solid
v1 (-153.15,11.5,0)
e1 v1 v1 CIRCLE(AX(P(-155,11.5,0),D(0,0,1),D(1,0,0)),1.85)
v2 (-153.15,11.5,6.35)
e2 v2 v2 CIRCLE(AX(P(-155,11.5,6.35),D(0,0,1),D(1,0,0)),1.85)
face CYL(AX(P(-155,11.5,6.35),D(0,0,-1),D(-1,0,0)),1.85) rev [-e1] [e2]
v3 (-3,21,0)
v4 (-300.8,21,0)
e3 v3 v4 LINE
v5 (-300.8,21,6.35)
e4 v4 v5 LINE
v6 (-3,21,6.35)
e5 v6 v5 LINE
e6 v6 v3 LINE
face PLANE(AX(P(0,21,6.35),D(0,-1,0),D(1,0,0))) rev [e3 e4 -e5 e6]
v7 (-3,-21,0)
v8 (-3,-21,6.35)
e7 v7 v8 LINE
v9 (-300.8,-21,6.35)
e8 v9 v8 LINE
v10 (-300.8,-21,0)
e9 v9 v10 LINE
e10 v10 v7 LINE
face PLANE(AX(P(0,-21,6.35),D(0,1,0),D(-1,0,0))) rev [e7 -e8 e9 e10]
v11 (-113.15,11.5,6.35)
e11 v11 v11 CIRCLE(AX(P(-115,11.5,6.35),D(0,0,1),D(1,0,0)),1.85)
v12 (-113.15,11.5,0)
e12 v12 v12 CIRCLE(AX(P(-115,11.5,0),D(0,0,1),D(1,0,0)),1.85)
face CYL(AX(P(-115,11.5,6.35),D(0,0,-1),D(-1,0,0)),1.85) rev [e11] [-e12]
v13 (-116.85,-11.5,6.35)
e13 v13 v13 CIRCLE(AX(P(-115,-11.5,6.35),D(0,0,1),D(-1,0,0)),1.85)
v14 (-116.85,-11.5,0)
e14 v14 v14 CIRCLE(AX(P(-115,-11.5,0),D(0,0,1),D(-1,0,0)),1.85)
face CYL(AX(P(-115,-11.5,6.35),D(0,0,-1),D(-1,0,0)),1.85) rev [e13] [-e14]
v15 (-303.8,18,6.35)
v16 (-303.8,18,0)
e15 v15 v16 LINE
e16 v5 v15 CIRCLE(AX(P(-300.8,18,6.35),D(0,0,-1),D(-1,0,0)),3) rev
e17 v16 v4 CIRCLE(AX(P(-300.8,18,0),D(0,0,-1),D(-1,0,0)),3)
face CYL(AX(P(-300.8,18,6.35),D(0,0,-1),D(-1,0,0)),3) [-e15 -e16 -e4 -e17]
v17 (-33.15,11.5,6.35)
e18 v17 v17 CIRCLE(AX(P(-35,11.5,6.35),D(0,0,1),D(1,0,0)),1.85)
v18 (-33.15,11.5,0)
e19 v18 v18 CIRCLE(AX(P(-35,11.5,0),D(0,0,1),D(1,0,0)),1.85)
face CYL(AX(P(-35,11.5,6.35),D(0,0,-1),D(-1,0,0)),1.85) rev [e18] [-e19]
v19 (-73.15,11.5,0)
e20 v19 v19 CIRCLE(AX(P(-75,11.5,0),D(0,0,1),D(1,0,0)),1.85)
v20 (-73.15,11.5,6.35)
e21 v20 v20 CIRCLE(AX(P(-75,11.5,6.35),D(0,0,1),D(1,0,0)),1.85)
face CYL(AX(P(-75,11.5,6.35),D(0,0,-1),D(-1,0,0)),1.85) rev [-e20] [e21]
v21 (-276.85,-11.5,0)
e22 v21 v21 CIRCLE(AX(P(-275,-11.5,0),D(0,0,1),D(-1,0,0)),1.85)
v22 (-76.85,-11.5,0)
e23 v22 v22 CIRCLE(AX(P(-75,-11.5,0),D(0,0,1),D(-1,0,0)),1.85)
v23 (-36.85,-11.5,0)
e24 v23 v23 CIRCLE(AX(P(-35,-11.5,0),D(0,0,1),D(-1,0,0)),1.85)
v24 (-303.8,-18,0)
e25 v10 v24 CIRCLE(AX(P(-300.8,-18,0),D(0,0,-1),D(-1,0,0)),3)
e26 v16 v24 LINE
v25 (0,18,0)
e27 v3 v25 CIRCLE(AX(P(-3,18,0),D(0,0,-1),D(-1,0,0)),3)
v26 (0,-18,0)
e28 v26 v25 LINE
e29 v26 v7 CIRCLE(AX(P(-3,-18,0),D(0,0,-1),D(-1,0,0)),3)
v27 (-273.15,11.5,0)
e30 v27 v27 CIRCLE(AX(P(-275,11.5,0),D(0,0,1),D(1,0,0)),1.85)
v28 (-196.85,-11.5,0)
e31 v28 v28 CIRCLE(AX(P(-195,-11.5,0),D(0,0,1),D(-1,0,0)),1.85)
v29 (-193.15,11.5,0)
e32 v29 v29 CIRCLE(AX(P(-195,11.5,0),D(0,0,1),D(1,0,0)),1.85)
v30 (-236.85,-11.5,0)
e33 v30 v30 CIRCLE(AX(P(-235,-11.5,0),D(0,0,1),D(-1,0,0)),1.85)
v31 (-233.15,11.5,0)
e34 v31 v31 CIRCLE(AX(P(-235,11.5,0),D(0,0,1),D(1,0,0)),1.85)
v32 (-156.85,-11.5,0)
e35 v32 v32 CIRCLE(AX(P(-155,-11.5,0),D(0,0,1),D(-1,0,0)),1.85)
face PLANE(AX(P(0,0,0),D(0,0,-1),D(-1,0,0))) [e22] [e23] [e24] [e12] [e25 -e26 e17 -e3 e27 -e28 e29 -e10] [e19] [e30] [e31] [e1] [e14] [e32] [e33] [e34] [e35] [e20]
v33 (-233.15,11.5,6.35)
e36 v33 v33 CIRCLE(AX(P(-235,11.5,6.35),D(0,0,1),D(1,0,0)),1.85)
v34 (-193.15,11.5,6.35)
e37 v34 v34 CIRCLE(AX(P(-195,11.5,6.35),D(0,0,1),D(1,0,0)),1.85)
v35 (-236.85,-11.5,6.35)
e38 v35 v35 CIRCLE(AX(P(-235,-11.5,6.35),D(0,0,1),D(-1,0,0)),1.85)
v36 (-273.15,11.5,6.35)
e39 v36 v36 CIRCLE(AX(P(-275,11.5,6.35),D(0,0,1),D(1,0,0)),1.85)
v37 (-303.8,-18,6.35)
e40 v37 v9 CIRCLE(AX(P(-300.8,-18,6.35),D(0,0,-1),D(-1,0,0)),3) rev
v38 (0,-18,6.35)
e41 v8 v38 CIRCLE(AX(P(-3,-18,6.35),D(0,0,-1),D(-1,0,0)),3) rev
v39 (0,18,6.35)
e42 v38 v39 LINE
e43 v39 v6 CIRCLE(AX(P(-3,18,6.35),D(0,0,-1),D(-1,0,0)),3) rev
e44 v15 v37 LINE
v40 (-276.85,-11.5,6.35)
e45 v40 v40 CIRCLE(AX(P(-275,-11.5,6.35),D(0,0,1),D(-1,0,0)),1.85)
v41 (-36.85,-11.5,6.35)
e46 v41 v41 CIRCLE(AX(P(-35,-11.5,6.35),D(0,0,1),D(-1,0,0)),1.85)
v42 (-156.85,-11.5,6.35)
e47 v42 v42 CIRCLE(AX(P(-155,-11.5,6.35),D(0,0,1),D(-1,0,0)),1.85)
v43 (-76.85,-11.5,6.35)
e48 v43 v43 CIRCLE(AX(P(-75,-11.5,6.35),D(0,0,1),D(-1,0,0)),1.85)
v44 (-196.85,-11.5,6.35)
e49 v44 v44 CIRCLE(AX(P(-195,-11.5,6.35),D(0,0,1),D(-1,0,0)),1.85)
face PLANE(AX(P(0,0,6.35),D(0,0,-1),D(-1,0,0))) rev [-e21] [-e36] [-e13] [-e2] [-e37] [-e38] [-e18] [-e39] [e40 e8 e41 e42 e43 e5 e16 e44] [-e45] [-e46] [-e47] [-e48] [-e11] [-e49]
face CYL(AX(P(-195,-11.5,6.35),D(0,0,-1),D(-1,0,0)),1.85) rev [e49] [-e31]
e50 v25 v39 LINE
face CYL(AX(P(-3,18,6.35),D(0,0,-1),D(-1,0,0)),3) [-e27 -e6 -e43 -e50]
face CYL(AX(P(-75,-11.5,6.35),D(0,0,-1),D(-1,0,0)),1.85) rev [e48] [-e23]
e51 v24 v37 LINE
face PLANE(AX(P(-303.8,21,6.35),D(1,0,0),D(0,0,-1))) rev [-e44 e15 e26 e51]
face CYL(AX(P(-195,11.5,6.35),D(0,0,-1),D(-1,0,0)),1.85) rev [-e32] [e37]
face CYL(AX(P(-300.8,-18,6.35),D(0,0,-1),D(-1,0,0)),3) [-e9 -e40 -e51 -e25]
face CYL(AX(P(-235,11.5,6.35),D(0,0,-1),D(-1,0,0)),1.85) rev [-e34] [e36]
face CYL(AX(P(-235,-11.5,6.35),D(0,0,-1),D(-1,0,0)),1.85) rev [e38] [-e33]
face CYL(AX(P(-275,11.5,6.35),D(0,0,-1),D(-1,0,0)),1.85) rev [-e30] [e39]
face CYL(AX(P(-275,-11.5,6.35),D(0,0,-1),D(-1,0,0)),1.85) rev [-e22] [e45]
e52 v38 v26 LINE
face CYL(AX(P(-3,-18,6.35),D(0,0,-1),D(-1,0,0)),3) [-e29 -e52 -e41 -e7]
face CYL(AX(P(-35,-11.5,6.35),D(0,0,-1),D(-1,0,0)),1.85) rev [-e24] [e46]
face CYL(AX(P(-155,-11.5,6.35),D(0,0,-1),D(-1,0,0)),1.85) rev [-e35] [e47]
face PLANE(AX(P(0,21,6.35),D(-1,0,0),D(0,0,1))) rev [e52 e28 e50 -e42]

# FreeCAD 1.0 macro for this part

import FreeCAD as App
import Part
import Sketcher

V = App.Vector
Q = App.Units.Quantity


def edges_at(feature, points):
    """Names of the edges that pass closest to the given points."""
    edges = feature.Shape.Edges
    near = lambda p: min(range(len(edges)), key=lambda i: edges[i].distToShape(Part.Vertex(*p))[0])
    return sorted({f"Edge{near(p) + 1}" for p in points})

doc = App.newDocument("Part")
params = doc.addObject("Spreadsheet::Sheet", "Params")
for row, (alias, value) in enumerate([
    ("sketch1_diameter", "3.7 mm"),
    ("sketch1_height", "42 mm"),
    ("sketch1_width", "303.8 mm"),
    ("pad1_length", "6.35 mm"),
    ("fillet_radius", "3 mm"),
], start=1):
    params.set(f"A{row}", alias)
    params.set(f"B{row}", "=" + value)
    params.setAlias(f"B{row}", alias)

body = doc.addObject("PartDesign::Body", "Body")

# Sketch on XY plane
sketch1 = doc.addObject("Sketcher::SketchObject", "Sketch")
body.addObject(sketch1)
sketch1.AttachmentSupport = (doc.XY_Plane, [""])
sketch1.MapMode = "FlatFace"
sketch1.addGeometry(Part.LineSegment(V(-303.8, 21, 0), V(-303.8, -21, 0)), False)
sketch1.addGeometry(Part.LineSegment(V(-303.8, -21, 0), V(0, -21, 0)), False)
sketch1.addGeometry(Part.LineSegment(V(0, -21, 0), V(0, 21, 0)), False)
sketch1.addGeometry(Part.LineSegment(V(0, 21, 0), V(-303.8, 21, 0)), False)
sketch1.addGeometry(Part.Circle(V(-275, -11.5, 0), V(0, 0, 1), 1.85), False)
sketch1.addGeometry(Part.Circle(V(-235, -11.5, 0), V(0, 0, 1), 1.85), False)
sketch1.addGeometry(Part.Circle(V(-195, -11.5, 0), V(0, 0, 1), 1.85), False)
sketch1.addGeometry(Part.Circle(V(-155, -11.5, 0), V(0, 0, 1), 1.85), False)
sketch1.addGeometry(Part.Circle(V(-115, -11.5, 0), V(0, 0, 1), 1.85), False)
sketch1.addGeometry(Part.Circle(V(-75, -11.5, 0), V(0, 0, 1), 1.85), False)
sketch1.addGeometry(Part.Circle(V(-35, -11.5, 0), V(0, 0, 1), 1.85), False)
sketch1.addGeometry(Part.Circle(V(-275, 11.5, 0), V(0, 0, 1), 1.85), False)
sketch1.addGeometry(Part.Circle(V(-235, 11.5, 0), V(0, 0, 1), 1.85), False)
sketch1.addGeometry(Part.Circle(V(-195, 11.5, 0), V(0, 0, 1), 1.85), False)
sketch1.addGeometry(Part.Circle(V(-155, 11.5, 0), V(0, 0, 1), 1.85), False)
sketch1.addGeometry(Part.Circle(V(-115, 11.5, 0), V(0, 0, 1), 1.85), False)
sketch1.addGeometry(Part.Circle(V(-75, 11.5, 0), V(0, 0, 1), 1.85), False)
sketch1.addGeometry(Part.Circle(V(-35, 11.5, 0), V(0, 0, 1), 1.85), False)
sketch1.addConstraint(Sketcher.Constraint("Coincident", 0, 2, 1, 1))
sketch1.addConstraint(Sketcher.Constraint("Coincident", 1, 2, 2, 1))
sketch1.addConstraint(Sketcher.Constraint("Coincident", 2, 2, 3, 1))
sketch1.addConstraint(Sketcher.Constraint("Coincident", 3, 2, 0, 1))
sketch1.addConstraint(Sketcher.Constraint("Vertical", 0))
sketch1.addConstraint(Sketcher.Constraint("Horizontal", 1))
sketch1.addConstraint(Sketcher.Constraint("Vertical", 2))
sketch1.addConstraint(Sketcher.Constraint("Horizontal", 3))
sketch1.addConstraint(Sketcher.Constraint("Equal", 4, 5))
sketch1.addConstraint(Sketcher.Constraint("Equal", 5, 6))
sketch1.addConstraint(Sketcher.Constraint("Equal", 6, 7))
sketch1.addConstraint(Sketcher.Constraint("Equal", 7, 8))
sketch1.addConstraint(Sketcher.Constraint("Equal", 8, 9))
sketch1.addConstraint(Sketcher.Constraint("Equal", 9, 10))
sketch1.addConstraint(Sketcher.Constraint("Equal", 10, 11))
sketch1.addConstraint(Sketcher.Constraint("Equal", 11, 12))
sketch1.addConstraint(Sketcher.Constraint("Equal", 12, 13))
sketch1.addConstraint(Sketcher.Constraint("Equal", 13, 14))
sketch1.addConstraint(Sketcher.Constraint("Equal", 14, 15))
sketch1.addConstraint(Sketcher.Constraint("Equal", 15, 16))
sketch1.addConstraint(Sketcher.Constraint("Equal", 16, 17))
sketch1.addConstraint(Sketcher.Constraint("Symmetric", 1, 2, 2, 2, -1, 1))
sketch1.addConstraint(Sketcher.Constraint("Symmetric", 4, 3, 11, 3, -1))
sketch1.addConstraint(Sketcher.Constraint("Symmetric", 5, 3, 12, 3, -1))
sketch1.addConstraint(Sketcher.Constraint("Symmetric", 6, 3, 13, 3, -1))
sketch1.addConstraint(Sketcher.Constraint("Symmetric", 7, 3, 14, 3, -1))
sketch1.addConstraint(Sketcher.Constraint("Symmetric", 8, 3, 15, 3, -1))
sketch1.addConstraint(Sketcher.Constraint("Symmetric", 9, 3, 16, 3, -1))
sketch1.addConstraint(Sketcher.Constraint("Symmetric", 10, 3, 17, 3, -1))
sketch1.addConstraint(Sketcher.Constraint("Horizontal", 4, 3, 5, 3))
sketch1.addConstraint(Sketcher.Constraint("Horizontal", 5, 3, 6, 3))
sketch1.addConstraint(Sketcher.Constraint("Horizontal", 6, 3, 7, 3))
sketch1.addConstraint(Sketcher.Constraint("Horizontal", 7, 3, 8, 3))
sketch1.addConstraint(Sketcher.Constraint("Horizontal", 8, 3, 9, 3))
sketch1.addConstraint(Sketcher.Constraint("Horizontal", 9, 3, 10, 3))
sketch1.addConstraint(Sketcher.Constraint("Diameter", 4, Q("3.7 mm")))
sketch1.addConstraint(Sketcher.Constraint("DistanceY", 0, 2, 0, 1, Q("42 mm")))
sketch1.addConstraint(Sketcher.Constraint("DistanceX", 1, 1, 1, 2, Q("303.8 mm")))
sketch1.addConstraint(Sketcher.Constraint("DistanceX", 4, 3, -1, 1, Q("275 mm")))
sketch1.addConstraint(Sketcher.Constraint("DistanceX", 5, 3, -1, 1, Q("235 mm")))
sketch1.addConstraint(Sketcher.Constraint("DistanceX", 6, 3, -1, 1, Q("195 mm")))
sketch1.addConstraint(Sketcher.Constraint("DistanceX", 7, 3, -1, 1, Q("155 mm")))
sketch1.addConstraint(Sketcher.Constraint("DistanceX", 8, 3, -1, 1, Q("115 mm")))
sketch1.addConstraint(Sketcher.Constraint("DistanceX", 9, 3, -1, 1, Q("75 mm")))
sketch1.addConstraint(Sketcher.Constraint("DistanceX", 10, 3, -1, 1, Q("35 mm")))
sketch1.addConstraint(Sketcher.Constraint("DistanceY", 4, 3, 11, 3, Q("23 mm")))
sketch1.setExpression("Constraints[35]", "Params.sketch1_diameter")
sketch1.setExpression("Constraints[36]", "Params.sketch1_height")
sketch1.setExpression("Constraints[37]", "Params.sketch1_width")
pad1 = doc.addObject("PartDesign::Pad", "Pad")
body.addObject(pad1)
pad1.Profile = sketch1
pad1.setExpression("Length", "Params.pad1_length")
doc.recompute()

fillet = doc.addObject("PartDesign::Fillet", "Fillet")
body.addObject(fillet)
fillet.Base = (pad1, edges_at(pad1, [
    (0, -21, 3.175),
    (-303.8, -21, 3.175),
    (-303.8, 21, 3.175),
    (0, 21, 3.175),
]))
fillet.setExpression("Radius", "Params.fillet_radius")

doc.recompute()
